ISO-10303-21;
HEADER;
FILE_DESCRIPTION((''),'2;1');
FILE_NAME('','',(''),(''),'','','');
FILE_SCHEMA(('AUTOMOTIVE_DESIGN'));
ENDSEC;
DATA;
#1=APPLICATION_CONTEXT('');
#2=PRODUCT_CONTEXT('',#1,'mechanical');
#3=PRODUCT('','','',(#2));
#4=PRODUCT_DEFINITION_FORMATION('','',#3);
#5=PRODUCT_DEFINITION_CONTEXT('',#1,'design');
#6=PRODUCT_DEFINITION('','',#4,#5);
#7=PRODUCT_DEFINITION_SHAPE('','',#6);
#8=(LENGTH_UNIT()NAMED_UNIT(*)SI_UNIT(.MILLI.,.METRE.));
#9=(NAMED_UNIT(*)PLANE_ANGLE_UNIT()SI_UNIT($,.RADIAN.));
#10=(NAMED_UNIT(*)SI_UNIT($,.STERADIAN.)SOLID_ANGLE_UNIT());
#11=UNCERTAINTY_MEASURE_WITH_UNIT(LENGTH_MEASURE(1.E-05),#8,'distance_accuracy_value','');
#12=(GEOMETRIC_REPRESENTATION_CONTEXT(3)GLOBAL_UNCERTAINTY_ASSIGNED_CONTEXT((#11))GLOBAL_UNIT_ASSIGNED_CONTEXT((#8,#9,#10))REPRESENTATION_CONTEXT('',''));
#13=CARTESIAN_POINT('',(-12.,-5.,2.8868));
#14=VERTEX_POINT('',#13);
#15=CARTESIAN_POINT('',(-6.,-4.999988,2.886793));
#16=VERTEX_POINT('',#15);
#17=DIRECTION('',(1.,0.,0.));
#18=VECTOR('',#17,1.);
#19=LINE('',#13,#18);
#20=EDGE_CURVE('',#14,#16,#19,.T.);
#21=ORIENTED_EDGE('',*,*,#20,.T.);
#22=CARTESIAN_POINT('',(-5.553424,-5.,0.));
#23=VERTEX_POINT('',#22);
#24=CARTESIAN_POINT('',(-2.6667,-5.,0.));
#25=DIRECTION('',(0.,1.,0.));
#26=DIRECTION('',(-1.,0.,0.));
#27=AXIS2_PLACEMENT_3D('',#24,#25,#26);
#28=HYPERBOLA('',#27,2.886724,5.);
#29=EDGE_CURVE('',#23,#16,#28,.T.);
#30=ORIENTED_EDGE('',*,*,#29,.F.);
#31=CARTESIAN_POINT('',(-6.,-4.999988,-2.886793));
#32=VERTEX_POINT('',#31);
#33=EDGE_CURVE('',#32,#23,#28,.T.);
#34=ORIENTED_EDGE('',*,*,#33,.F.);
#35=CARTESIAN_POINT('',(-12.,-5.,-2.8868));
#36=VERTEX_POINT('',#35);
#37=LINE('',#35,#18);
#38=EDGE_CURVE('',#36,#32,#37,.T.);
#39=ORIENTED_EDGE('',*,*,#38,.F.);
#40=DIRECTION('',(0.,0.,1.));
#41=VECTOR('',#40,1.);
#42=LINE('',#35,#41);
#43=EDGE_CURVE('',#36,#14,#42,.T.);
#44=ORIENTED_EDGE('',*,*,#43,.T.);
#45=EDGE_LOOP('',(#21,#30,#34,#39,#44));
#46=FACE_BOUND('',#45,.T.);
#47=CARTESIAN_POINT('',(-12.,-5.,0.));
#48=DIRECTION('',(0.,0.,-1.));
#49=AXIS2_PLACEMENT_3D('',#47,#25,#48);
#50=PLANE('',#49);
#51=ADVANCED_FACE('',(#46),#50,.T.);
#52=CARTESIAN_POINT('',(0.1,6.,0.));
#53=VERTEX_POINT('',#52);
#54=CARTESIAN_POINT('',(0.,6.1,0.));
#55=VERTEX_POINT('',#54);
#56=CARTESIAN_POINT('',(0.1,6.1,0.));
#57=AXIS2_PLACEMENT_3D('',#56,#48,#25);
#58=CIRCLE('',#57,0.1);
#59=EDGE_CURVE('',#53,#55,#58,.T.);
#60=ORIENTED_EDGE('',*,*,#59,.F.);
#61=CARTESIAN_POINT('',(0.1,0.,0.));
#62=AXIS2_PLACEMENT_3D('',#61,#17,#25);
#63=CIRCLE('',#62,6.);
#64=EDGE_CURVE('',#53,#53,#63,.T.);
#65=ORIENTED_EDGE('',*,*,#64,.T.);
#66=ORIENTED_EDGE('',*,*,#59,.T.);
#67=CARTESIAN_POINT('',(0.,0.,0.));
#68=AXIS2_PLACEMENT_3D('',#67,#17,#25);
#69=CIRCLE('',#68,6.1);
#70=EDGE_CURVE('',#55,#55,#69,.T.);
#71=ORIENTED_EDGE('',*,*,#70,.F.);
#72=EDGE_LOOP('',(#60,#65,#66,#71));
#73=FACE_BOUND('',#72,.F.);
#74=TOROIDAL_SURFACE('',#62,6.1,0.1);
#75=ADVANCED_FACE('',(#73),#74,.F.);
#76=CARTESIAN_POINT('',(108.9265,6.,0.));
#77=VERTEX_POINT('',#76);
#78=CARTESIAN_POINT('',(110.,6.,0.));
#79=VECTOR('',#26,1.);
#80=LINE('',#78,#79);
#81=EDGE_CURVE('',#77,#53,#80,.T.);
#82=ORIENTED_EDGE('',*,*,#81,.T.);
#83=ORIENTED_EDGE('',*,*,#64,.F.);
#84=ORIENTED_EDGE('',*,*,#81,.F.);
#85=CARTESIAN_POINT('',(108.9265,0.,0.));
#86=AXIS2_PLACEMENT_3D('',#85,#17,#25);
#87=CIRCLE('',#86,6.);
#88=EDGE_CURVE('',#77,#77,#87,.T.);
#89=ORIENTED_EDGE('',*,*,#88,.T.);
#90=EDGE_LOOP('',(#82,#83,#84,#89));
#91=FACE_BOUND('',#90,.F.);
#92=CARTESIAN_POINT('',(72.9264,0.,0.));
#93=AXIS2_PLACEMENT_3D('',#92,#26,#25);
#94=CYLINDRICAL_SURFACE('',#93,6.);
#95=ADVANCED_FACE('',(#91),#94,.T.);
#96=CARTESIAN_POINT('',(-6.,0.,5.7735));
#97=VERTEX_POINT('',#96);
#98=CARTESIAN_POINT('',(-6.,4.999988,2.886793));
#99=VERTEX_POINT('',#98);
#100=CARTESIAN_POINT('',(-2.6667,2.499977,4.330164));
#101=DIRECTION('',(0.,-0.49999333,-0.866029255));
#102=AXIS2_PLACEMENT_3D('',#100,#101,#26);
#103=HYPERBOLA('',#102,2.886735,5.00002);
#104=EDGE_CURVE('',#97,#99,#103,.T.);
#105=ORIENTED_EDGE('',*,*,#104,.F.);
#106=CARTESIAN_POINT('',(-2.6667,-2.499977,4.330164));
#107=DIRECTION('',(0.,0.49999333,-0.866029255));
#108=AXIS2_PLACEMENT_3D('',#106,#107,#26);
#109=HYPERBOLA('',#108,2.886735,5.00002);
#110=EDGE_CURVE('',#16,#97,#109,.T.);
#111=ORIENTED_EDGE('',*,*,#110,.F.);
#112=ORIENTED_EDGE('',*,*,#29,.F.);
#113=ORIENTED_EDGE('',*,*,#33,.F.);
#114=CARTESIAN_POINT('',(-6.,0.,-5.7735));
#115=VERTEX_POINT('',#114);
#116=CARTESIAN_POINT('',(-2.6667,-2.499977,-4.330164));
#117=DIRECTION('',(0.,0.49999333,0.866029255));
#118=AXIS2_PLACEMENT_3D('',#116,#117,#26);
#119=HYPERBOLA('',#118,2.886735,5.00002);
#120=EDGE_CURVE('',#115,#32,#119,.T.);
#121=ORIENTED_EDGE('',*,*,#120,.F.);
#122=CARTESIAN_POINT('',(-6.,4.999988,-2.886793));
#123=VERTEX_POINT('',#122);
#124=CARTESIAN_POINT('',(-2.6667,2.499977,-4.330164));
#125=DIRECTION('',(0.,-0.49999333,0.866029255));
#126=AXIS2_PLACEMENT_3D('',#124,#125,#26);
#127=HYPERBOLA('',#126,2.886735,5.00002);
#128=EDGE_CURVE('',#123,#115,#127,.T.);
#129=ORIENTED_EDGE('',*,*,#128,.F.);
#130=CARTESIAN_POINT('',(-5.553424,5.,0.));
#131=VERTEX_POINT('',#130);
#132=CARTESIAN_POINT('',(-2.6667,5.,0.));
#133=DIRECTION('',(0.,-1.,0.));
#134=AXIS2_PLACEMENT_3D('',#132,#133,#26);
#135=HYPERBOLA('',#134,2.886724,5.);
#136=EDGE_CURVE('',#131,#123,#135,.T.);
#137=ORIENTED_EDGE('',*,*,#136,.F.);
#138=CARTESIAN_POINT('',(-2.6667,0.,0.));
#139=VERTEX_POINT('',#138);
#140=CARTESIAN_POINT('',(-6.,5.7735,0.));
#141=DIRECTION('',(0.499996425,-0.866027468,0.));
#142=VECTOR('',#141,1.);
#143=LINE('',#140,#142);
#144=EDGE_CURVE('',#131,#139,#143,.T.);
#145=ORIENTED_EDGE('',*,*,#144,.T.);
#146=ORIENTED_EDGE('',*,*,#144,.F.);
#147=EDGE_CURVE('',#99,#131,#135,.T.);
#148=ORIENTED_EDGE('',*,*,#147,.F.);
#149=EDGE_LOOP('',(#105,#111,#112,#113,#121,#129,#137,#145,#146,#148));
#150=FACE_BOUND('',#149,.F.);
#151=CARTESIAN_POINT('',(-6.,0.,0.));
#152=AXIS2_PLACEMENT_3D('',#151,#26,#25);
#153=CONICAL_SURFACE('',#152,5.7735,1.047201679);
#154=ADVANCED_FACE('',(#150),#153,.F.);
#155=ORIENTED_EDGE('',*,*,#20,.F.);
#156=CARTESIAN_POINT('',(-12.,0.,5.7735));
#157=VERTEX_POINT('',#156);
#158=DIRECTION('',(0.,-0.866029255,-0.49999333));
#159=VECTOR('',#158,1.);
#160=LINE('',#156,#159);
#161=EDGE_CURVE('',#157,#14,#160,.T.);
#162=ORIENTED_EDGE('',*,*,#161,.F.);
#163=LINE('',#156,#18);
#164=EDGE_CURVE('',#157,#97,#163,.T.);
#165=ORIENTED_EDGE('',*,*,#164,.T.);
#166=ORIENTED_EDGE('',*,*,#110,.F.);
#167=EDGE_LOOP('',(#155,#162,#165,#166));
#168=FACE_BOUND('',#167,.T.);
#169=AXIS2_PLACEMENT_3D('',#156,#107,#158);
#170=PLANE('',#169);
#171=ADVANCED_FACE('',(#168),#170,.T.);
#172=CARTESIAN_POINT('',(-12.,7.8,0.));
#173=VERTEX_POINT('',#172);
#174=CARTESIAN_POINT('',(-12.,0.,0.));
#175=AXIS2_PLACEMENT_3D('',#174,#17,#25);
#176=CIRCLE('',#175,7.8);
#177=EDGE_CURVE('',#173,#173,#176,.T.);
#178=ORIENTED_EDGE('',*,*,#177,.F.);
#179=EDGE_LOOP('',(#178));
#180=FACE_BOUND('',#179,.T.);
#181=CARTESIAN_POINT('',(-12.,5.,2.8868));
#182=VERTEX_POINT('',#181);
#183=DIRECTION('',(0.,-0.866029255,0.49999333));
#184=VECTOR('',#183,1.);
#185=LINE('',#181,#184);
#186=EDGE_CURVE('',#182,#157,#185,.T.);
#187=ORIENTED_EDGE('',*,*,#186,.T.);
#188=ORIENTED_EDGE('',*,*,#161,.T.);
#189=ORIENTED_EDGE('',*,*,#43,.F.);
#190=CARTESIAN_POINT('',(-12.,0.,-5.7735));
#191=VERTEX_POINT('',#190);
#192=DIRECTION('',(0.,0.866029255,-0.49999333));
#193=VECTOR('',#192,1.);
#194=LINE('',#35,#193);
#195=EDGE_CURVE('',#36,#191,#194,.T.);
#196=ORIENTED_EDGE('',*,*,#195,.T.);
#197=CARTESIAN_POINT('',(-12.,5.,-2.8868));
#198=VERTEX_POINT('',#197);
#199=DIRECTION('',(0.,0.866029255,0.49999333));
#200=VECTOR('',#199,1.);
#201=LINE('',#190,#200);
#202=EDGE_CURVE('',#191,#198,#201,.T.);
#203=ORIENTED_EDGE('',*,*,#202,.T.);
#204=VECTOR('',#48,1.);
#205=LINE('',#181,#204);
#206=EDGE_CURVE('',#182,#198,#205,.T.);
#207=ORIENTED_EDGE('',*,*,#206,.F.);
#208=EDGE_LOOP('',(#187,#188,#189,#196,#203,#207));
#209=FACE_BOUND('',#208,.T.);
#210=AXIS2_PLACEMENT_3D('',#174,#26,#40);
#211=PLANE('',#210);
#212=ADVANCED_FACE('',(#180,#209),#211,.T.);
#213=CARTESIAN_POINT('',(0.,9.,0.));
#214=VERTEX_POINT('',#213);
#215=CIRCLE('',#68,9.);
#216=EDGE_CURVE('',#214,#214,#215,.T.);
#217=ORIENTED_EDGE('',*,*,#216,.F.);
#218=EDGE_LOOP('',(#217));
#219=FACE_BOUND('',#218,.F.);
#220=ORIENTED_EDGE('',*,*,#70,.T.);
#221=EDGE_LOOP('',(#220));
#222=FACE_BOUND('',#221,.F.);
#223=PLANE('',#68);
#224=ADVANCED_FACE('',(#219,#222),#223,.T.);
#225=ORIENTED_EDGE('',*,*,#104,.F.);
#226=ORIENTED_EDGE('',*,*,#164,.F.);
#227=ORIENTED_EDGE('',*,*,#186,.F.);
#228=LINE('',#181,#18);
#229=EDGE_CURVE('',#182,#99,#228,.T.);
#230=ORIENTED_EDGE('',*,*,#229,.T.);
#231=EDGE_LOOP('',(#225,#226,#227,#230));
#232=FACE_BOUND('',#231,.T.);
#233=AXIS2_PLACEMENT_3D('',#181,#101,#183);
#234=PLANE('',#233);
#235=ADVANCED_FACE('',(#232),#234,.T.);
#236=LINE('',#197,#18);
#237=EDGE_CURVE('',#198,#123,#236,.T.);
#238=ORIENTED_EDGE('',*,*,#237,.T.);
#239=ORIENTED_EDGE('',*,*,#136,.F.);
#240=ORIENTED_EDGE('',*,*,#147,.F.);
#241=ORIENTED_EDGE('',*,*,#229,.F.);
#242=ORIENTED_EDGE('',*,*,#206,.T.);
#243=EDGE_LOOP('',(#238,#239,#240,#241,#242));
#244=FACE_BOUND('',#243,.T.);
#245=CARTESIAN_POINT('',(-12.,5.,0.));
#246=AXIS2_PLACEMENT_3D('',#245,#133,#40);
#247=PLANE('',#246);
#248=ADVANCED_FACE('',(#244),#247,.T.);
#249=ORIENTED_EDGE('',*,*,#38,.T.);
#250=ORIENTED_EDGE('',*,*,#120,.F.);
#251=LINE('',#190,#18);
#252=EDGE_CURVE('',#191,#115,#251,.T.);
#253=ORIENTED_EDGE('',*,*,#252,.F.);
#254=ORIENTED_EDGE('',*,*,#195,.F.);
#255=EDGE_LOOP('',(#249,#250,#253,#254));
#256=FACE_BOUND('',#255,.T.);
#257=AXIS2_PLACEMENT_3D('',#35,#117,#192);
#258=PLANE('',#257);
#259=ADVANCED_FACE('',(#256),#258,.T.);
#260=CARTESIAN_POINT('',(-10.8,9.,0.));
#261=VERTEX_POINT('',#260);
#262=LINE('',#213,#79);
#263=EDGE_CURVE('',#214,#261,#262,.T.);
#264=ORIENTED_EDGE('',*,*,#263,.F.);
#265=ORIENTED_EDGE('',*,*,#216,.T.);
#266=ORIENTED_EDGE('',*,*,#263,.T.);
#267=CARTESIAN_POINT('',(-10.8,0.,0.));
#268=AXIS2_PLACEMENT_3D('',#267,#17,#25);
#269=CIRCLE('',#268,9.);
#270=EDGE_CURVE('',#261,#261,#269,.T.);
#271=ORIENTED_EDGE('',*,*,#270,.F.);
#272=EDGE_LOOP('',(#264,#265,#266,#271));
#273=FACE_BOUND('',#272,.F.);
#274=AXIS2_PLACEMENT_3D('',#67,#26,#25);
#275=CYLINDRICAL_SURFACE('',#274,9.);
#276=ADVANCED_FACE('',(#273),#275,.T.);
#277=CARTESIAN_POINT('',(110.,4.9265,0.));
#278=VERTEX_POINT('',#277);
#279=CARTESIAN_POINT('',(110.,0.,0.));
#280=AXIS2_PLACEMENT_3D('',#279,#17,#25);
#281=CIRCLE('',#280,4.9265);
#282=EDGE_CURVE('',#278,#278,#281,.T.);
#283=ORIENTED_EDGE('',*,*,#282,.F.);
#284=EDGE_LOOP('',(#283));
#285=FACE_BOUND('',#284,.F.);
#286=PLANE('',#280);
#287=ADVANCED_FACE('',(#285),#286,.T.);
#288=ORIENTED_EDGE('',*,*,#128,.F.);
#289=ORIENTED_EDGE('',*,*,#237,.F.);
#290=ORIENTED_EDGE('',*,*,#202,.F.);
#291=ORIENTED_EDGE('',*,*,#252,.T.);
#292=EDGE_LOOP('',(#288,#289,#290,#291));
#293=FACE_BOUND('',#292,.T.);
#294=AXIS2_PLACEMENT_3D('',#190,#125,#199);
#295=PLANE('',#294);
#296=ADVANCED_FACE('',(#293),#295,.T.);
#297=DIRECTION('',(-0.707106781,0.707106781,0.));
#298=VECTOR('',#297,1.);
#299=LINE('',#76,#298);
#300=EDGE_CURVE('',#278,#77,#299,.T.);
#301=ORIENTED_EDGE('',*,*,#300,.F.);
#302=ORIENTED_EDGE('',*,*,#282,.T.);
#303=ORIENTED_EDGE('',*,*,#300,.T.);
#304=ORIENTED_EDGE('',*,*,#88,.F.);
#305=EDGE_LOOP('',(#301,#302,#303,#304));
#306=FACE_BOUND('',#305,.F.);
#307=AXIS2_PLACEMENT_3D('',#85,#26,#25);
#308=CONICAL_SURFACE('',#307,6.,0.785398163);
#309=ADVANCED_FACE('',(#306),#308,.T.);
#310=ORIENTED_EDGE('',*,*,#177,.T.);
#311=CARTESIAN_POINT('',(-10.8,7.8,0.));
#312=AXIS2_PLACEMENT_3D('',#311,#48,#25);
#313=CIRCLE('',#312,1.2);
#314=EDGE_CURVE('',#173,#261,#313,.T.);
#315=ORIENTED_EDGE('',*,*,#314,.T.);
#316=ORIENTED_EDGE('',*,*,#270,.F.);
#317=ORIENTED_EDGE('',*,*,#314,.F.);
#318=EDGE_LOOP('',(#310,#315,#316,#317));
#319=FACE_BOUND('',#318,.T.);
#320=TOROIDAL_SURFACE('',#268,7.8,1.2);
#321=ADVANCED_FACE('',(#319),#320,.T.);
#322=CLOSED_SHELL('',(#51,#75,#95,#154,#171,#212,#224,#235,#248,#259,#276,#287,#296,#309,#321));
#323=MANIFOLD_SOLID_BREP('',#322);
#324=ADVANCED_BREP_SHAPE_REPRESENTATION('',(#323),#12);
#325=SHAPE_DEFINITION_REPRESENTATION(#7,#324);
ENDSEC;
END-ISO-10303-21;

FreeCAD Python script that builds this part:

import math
import FreeCAD as App
import Part
import Sketcher

V = App.Vector
Q = App.Units.Quantity


def edges_at(feature, points):
    """Names of the edges that pass closest to the given points."""
    edges = feature.Shape.Edges
    near = lambda p: min(range(len(edges)), key=lambda i: edges[i].distToShape(Part.Vertex(*p))[0])
    return sorted({f"Edge{near(p) + 1}" for p in points})

doc = App.newDocument("Part")
body = doc.addObject("PartDesign::Body", "Body")

# Sketch on XY plane
sketch1 = body.newObject("Sketcher::SketchObject", "Sketch")
sketch1.AttachmentSupport = (doc.getObject("XY_Plane"), [""])
sketch1.MapMode = "FlatFace"
sketch1.addGeometry([
    Part.LineSegment(V(-6, 5.7735, 0), V(-2.6667, 0, 0)),  # 0
    Part.LineSegment(V(-2.6667, 0, 0), V(110, 0, 0)),  # 1
    Part.LineSegment(V(110, 0, 0), V(110, 6, 0)),  # 2
    Part.LineSegment(V(110, 6, 0), V(0, 6, 0)),  # 3
    Part.LineSegment(V(0, 6, 0), V(0, 9, 0)),  # 4
    Part.LineSegment(V(0, 9, 0), V(-12, 9, 0)),  # 5
    Part.LineSegment(V(-12, 9, 0), V(-12, 5.7735, 0)),  # 6
    Part.LineSegment(V(-12, 5.7735, 0), V(-6, 5.7735, 0)),  # 7
], False)
sketch1.addConstraint([
    Sketcher.Constraint("Coincident", 0, 2, 1, 1),
    Sketcher.Constraint("Coincident", 1, 2, 2, 1),
    Sketcher.Constraint("Coincident", 2, 2, 3, 1),
    Sketcher.Constraint("Coincident", 3, 2, 4, 1),
    Sketcher.Constraint("Coincident", 4, 2, 5, 1),
    Sketcher.Constraint("Coincident", 5, 2, 6, 1),
    Sketcher.Constraint("Coincident", 6, 2, 7, 1),
    Sketcher.Constraint("Coincident", 7, 2, 0, 1),
    Sketcher.Constraint("Horizontal", 1),
    Sketcher.Constraint("Vertical", 2),
    Sketcher.Constraint("Horizontal", 3),
    Sketcher.Constraint("Vertical", 4),
    Sketcher.Constraint("Horizontal", 5),
    Sketcher.Constraint("Vertical", 6),
    Sketcher.Constraint("Horizontal", 7),
    Sketcher.Constraint("PointOnObject", 0, 2, -1),
    Sketcher.Constraint("PointOnObject", 3, 2, -2),
    Sketcher.Constraint("Equal", 7, 2),
    Sketcher.Constraint("DistanceX", 3, 2, 3, 1, 110.0),
    Sketcher.Constraint("DistanceX", 5, 2, 5, 1, 12.0),
    Sketcher.Constraint("DistanceX", 7, 1, 7, 2, 6.0),
    Sketcher.Constraint("Angle", 0, Q("-60.0002 deg")),
    Sketcher.Constraint("DistanceY", 4, 1, 4, 2, 3.0),
    Sketcher.Constraint("DistanceX", 1, 1, 1, 2, 112.6667),
])
revolution = body.newObject("PartDesign::Revolution", "Revolution")
revolution.Profile = sketch1
revolution.ReferenceAxis = (sketch1, ["H_Axis"])
revolution.Angle = 360

# Sketch on YZ plane
sketch2 = body.newObject("Sketcher::SketchObject", "Sketch001")
sketch2.AttachmentSupport = (doc.getObject("YZ_Plane"), [""])
sketch2.MapMode = "FlatFace"
sketch2.AttachmentOffset = App.Placement(V(0, 0, -12), App.Rotation())
sketch2.addGeometry([
    Part.LineSegment(V(5, 2.8868, 0), V(0, 5.7735, 0)),  # 0
    Part.ArcOfCircle(Part.Circle(V(0, 0, 0), V(0, 0, 1), 5.7735), math.radians(30.000418), math.radians(90)),  # 1
    Part.ArcOfCircle(Part.Circle(V(0, 0, 0), V(0, 0, 1), 5.7735), math.radians(90), math.radians(149.999582)),  # 2
    Part.LineSegment(V(0, 5.7735, 0), V(-5, 2.8868, 0)),  # 3
    Part.ArcOfCircle(Part.Circle(V(0, 0, 0), V(0, 0, 1), 5.7735), math.radians(-30.000418), math.radians(30.000418)),  # 4
    Part.LineSegment(V(5, 2.8868, 0), V(5, -2.8868, 0)),  # 5
    Part.LineSegment(V(-5, 2.8868, 0), V(-5, -2.8868, 0)),  # 6
    Part.ArcOfCircle(Part.Circle(V(0, 0, 0), V(0, 0, 1), 5.7735), math.radians(149.999582), math.radians(210.000418)),  # 7
    Part.LineSegment(V(-5, -2.8868, 0), V(0, -5.7735, 0)),  # 8
    Part.ArcOfCircle(Part.Circle(V(0, 0, 0), V(0, 0, 1), 5.7735), math.radians(-149.999582), math.radians(-90)),  # 9
    Part.ArcOfCircle(Part.Circle(V(0, 0, 0), V(0, 0, 1), 5.7735), math.radians(-90), math.radians(-30.000418)),  # 10
    Part.LineSegment(V(0, -5.7735, 0), V(5, -2.8868, 0)),  # 11
], False)
sketch2.addConstraint([
    Sketcher.Constraint("Coincident", 0, 1, 1, 1),
    Sketcher.Constraint("Coincident", 1, 2, 0, 2),
    Sketcher.Constraint("Coincident", 2, 1, 3, 1),
    Sketcher.Constraint("Coincident", 3, 2, 2, 2),
    Sketcher.Constraint("Coincident", 4, 1, 5, 2),
    Sketcher.Constraint("Coincident", 5, 1, 4, 2),
    Sketcher.Constraint("Coincident", 6, 1, 7, 1),
    Sketcher.Constraint("Coincident", 7, 2, 6, 2),
    Sketcher.Constraint("Coincident", 8, 1, 9, 1),
    Sketcher.Constraint("Coincident", 9, 2, 8, 2),
    Sketcher.Constraint("Coincident", 10, 1, 11, 1),
    Sketcher.Constraint("Coincident", 11, 2, 10, 2),
    Sketcher.Constraint("Vertical", 5),
    Sketcher.Constraint("Vertical", 6),
    Sketcher.Constraint("Coincident", 1, 3, -1, 1),
    Sketcher.Constraint("Coincident", 2, 3, -1, 1),
    Sketcher.Constraint("Coincident", 4, 3, -1, 1),
    Sketcher.Constraint("Coincident", 7, 3, -1, 1),
    Sketcher.Constraint("Coincident", 9, 3, -1, 1),
    Sketcher.Constraint("Coincident", 10, 3, -1, 1),
    Sketcher.Constraint("Coincident", 2, 1, 1, 2),
    Sketcher.Constraint("Coincident", 5, 1, 0, 1),
    Sketcher.Constraint("Coincident", 6, 1, 3, 2),
    Sketcher.Constraint("Coincident", 8, 1, 7, 2),
    Sketcher.Constraint("Coincident", 10, 1, 9, 2),
    Sketcher.Constraint("PointOnObject", 1, 2, -2),
    Sketcher.Constraint("PointOnObject", 9, 2, -2),
    Sketcher.Constraint("Parallel", 0, 8),
    Sketcher.Constraint("Parallel", 3, 11),
    Sketcher.Constraint("Angle", 0, Q("150.0004 deg")),
    Sketcher.Constraint("DistanceX", -1, 1, 0, 1, 5.0),
])
pad1 = body.newObject("PartDesign::Pad", "Pad")
pad1.Profile = sketch2
pad1.Length = 6.4466
doc.recompute()

fillet = body.newObject("PartDesign::Fillet", "Fillet")
fillet.Base = (pad1, edges_at(pad1, [(-12, -9, 0)]))
fillet.Radius = 1.2
doc.recompute()

chamfer = body.newObject("PartDesign::Chamfer", "Chamfer")
chamfer.Base = (fillet, edges_at(fillet, [(110, -6, 0)]))
chamfer.ChamferType = "Two distances"
chamfer.Size = 1.0735
chamfer.Size2 = 1.0735
doc.recompute()

fillet2 = body.newObject("PartDesign::Fillet", "Fillet001")
fillet2.Base = (chamfer, edges_at(chamfer, [(0, -6, 0)]))
fillet2.Radius = 0.1

doc.recompute()
